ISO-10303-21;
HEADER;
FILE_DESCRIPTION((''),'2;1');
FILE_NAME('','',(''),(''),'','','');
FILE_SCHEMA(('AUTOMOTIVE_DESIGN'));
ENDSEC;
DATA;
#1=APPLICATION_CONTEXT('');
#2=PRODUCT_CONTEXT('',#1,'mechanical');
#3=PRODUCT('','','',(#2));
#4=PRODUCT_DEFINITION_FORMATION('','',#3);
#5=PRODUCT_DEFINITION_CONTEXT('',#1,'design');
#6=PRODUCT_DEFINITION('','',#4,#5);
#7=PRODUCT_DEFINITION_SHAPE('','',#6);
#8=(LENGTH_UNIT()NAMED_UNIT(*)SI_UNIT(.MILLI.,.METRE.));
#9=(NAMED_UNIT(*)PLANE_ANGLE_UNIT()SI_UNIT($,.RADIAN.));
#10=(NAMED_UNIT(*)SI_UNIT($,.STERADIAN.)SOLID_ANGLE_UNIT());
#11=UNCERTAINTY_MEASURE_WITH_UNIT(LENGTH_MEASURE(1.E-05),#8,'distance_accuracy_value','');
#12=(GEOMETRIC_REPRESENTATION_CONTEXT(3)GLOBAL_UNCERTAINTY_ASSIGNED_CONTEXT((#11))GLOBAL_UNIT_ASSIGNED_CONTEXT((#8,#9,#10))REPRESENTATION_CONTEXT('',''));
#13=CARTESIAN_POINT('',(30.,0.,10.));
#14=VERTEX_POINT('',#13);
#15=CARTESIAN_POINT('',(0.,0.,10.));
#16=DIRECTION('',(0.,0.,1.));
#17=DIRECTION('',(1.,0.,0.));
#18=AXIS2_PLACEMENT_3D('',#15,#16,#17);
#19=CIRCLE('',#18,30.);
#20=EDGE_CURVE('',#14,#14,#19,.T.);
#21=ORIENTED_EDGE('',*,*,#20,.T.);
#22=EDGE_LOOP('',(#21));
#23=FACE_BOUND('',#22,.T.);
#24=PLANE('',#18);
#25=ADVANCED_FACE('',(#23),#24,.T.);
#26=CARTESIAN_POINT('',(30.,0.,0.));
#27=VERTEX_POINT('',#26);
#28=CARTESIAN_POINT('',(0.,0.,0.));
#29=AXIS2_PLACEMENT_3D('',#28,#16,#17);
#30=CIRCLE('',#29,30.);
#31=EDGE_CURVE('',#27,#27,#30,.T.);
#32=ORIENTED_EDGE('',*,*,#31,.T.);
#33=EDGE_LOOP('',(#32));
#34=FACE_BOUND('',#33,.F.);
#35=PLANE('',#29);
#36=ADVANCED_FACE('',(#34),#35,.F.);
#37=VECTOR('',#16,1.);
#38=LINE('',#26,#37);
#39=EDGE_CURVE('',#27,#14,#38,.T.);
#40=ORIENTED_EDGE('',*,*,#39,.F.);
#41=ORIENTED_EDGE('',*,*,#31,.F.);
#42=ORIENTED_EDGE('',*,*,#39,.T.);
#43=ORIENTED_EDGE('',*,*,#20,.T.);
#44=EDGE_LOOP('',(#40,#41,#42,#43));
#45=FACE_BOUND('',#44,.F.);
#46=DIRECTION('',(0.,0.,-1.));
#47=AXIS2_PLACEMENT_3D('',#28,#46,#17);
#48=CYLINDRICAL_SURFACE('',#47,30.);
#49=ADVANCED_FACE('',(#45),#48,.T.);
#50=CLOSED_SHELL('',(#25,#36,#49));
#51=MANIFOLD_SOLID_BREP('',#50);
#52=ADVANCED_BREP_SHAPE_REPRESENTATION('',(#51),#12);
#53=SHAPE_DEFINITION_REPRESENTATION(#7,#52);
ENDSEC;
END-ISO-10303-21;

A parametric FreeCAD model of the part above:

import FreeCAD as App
import Part
import Sketcher

V = App.Vector
Q = App.Units.Quantity

doc = App.newDocument("Part")
params = doc.addObject("Spreadsheet::Sheet", "Params")
for row, (alias, value) in enumerate([
    ("sketch1_diameter", "60 mm"),
    ("pad1_length", "10 mm"),
], start=1):
    params.set(f"A{row}", alias)
    params.set(f"B{row}", "=" + value)
    params.setAlias(f"B{row}", alias)

body = doc.addObject("PartDesign::Body", "Body")

sketch1 = body.newObject("Sketcher::SketchObject", "Sketch")
sketch1.AttachmentSupport = (doc.getObject("XY_Plane"), [""])
sketch1.MapMode = "FlatFace"
sketch1.addGeometry(Part.Circle(V(0, 0, 0), V(0, 0, 1), 30), False)
sketch1.addConstraint([
    Sketcher.Constraint("Coincident", 0, 3, -1, 1),
    Sketcher.Constraint("Diameter", 0, Q("60 mm")),
])
sketch1.setExpression("Constraints[1]", "Params.sketch1_diameter")
pad1 = body.newObject("PartDesign::Pad", "Pad")
pad1.Profile = sketch1
pad1.setExpression("Length", "Params.pad1_length")

doc.recompute()
